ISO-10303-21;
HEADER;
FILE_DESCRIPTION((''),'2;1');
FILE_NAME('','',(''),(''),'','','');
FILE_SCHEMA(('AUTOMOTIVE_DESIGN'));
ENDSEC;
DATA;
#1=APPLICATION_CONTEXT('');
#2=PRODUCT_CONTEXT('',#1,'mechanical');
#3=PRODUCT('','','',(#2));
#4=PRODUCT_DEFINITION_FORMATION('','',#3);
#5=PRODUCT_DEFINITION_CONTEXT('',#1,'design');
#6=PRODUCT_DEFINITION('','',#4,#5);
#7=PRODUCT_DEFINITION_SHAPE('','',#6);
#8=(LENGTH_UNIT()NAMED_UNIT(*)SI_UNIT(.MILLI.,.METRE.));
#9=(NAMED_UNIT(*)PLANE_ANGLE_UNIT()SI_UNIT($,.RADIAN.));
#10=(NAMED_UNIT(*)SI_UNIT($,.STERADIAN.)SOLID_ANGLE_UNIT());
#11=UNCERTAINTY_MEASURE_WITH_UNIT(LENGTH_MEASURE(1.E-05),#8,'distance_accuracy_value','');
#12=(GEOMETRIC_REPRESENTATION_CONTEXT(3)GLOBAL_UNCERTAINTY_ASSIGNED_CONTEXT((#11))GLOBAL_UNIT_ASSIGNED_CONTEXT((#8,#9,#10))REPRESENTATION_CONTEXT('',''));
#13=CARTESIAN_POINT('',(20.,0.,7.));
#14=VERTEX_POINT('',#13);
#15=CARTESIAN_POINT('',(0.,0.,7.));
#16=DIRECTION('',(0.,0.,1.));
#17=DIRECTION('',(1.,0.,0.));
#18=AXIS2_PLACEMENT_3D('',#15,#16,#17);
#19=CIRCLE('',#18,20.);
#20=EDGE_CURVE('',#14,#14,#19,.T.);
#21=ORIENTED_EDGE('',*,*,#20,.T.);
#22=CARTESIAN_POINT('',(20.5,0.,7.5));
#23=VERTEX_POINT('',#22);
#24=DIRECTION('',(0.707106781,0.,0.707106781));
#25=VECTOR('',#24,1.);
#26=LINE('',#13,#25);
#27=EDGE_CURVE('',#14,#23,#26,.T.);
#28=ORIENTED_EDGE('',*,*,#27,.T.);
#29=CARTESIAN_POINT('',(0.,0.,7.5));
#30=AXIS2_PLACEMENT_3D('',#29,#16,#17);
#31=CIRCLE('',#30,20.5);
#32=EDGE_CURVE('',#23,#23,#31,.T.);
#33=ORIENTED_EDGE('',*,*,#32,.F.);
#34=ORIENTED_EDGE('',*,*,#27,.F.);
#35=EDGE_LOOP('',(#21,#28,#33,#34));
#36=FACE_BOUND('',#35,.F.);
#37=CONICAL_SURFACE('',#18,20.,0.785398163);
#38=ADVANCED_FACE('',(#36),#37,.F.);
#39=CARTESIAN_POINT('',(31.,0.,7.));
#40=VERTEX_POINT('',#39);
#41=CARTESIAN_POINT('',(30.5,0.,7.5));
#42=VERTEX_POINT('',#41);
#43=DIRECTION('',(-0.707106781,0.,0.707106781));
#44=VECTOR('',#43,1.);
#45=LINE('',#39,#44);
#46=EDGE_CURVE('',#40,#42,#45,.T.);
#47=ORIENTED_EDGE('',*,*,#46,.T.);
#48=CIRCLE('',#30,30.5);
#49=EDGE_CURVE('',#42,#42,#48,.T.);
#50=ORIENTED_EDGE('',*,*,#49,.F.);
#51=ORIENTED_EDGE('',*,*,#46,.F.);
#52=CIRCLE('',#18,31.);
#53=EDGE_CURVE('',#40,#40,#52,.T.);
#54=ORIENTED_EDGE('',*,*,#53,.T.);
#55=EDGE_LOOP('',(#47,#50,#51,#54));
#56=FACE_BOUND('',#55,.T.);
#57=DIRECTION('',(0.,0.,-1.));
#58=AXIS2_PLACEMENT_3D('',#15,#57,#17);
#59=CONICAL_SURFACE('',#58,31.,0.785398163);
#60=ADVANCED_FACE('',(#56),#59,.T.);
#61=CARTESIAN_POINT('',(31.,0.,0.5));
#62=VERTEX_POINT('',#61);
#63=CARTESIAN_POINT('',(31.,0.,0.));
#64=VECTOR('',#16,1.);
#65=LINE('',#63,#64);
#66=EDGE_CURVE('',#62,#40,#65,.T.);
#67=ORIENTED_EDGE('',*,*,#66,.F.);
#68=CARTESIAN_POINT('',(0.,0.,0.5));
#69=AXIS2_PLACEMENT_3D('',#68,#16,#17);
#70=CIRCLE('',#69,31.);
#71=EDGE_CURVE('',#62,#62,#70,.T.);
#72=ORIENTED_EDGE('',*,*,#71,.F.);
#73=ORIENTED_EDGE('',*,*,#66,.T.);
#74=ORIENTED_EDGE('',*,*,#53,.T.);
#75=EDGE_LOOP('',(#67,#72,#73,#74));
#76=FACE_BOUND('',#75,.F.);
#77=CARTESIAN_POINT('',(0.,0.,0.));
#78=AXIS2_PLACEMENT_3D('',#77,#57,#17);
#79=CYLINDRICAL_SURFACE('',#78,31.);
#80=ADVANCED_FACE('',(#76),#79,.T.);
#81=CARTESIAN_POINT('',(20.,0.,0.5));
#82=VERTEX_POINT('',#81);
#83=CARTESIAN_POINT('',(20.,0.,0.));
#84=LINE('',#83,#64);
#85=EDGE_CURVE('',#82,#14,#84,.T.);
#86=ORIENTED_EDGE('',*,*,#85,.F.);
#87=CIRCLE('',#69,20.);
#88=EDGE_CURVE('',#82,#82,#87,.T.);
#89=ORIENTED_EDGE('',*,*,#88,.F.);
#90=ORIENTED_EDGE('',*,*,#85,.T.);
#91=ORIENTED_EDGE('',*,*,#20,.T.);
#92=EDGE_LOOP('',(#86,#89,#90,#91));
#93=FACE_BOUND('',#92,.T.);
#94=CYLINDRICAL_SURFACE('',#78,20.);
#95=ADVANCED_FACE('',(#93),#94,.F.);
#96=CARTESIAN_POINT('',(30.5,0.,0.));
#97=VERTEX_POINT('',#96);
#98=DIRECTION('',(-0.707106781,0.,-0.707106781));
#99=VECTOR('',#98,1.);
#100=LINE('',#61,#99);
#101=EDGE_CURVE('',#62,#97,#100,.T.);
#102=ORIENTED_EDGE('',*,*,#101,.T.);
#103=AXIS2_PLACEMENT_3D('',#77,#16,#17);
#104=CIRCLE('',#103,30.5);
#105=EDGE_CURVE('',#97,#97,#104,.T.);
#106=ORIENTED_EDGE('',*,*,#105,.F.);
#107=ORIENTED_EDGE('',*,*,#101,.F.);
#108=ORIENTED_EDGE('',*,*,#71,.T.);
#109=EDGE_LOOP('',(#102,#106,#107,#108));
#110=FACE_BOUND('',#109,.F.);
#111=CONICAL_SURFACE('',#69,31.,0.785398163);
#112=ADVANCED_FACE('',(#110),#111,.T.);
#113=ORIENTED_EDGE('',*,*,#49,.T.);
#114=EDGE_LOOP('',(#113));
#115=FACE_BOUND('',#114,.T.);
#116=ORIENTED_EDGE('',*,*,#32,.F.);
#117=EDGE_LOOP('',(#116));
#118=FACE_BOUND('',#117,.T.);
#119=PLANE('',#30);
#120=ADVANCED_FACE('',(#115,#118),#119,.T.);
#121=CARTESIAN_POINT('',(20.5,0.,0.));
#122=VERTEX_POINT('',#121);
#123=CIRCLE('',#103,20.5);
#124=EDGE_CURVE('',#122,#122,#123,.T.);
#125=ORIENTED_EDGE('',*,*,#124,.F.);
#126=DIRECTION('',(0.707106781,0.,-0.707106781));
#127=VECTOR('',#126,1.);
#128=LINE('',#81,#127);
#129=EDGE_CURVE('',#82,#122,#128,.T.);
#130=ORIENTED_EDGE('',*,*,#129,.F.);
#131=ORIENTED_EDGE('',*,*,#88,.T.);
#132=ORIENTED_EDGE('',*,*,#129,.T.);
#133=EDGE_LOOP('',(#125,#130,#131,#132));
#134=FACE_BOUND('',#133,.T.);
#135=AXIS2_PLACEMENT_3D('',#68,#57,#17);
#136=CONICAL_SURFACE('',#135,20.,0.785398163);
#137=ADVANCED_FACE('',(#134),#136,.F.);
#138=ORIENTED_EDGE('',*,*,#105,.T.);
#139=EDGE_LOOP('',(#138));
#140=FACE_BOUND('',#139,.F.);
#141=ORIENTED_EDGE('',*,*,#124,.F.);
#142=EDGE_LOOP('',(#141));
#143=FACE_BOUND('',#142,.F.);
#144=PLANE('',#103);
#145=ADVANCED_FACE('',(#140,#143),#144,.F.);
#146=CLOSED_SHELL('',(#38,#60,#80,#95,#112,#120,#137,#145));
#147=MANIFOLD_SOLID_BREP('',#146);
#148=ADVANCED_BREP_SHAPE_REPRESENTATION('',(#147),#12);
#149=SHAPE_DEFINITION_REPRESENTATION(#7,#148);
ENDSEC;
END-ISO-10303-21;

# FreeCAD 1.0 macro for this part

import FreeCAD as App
import Part
import Sketcher
from FreeCAD import Vector


def edges_at(feature, points):
    """Names of the edges that pass closest to the given points."""
    edges = feature.Shape.Edges
    near = lambda p: min(range(len(edges)), key=lambda i: edges[i].distToShape(Part.Vertex(*p))[0])
    return sorted({f"Edge{near(p) + 1}" for p in points})

doc = App.newDocument("Part")
params = doc.addObject("Spreadsheet::Sheet", "Params")
for row, (alias, value) in enumerate([
    ("sketch1_diameter", "62 mm"),
    ("sketch1_diameter2", "40 mm"),
    ("pad1_length", "7.5 mm"),
    ("chamfer_size", "0.5 mm"),
], start=1):
    params.set(f"A{row}", alias)
    params.set(f"B{row}", "=" + value)
    params.setAlias(f"B{row}", alias)

body = doc.addObject("PartDesign::Body", "Body")

# Sketch on XY plane
sketch1 = body.newObject("Sketcher::SketchObject", "Sketch")
sketch1.AttachmentSupport = (doc.getObject("XY_Plane"), [""])
sketch1.MapMode = "FlatFace"
sketch1.addGeometry([
    Part.Circle(Vector(0, 0, 0), Vector(0, 0, 1), 31),
    Part.Circle(Vector(0, 0, 0), Vector(0, 0, 1), 20),
], False)
sketch1.addConstraint([
    Sketcher.Constraint("Coincident", 0, 3, -1, 1),
    Sketcher.Constraint("Coincident", 1, 3, -1, 1),
    Sketcher.Constraint("Diameter", 0, 62.0),
    Sketcher.Constraint("Diameter", 1, 40.0),
])
sketch1.setExpression("Constraints[2]", "Params.sketch1_diameter")
sketch1.setExpression("Constraints[3]", "Params.sketch1_diameter2")
pad1 = body.newObject("PartDesign::Pad", "Pad")
pad1.Profile = sketch1
pad1.setExpression("Length", "Params.pad1_length")
doc.recompute()

chamfer = body.newObject("PartDesign::Chamfer", "Chamfer")
chamfer.Base = (pad1, edges_at(pad1, [
    (-20, 0, 7.5),
    (-20, 0, 0),
    (-31, 0, 7.5),
    (-31, 0, 0),
]))
chamfer.setExpression("Size", "Params.chamfer_size")

doc.recompute()
